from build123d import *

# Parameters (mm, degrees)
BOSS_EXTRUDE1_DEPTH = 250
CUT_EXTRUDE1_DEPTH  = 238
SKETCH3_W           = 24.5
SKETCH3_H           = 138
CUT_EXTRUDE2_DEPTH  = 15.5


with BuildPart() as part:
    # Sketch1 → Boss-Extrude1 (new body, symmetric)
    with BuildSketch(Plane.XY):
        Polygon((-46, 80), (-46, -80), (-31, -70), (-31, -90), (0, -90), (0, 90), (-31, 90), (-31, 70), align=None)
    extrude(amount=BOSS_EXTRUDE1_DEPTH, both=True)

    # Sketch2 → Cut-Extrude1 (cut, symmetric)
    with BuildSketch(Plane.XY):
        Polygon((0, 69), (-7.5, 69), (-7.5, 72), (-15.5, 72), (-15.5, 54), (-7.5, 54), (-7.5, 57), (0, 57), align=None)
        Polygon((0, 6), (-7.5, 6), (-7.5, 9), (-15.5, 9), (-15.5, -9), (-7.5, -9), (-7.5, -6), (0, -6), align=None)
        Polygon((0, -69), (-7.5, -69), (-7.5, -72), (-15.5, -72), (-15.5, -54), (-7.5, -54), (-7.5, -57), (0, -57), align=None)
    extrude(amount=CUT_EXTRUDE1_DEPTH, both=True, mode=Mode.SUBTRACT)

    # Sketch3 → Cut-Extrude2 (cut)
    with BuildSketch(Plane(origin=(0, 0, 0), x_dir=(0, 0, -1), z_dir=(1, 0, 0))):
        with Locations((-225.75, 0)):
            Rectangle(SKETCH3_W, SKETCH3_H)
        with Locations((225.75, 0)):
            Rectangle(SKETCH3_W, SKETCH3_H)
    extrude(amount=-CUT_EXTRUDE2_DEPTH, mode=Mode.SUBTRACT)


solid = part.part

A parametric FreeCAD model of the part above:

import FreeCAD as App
import Part
import Sketcher

V = App.Vector
Q = App.Units.Quantity


def add_polygon(sketch, points):
    """Adds a closed chain of lines whose ends are joined by coincident constraints."""
    first, n = sketch.GeometryCount, len(points)
    for a, b in zip(points, points[1:] + points[:1]):
        sketch.addGeometry(Part.LineSegment(App.Vector(*a, 0), App.Vector(*b, 0)), False)
    for i in range(n):
        sketch.addConstraint(Sketcher.Constraint("Coincident", first + i, 2, first + (i + 1) % n, 1))

doc = App.newDocument("Part")
params = doc.addObject("Spreadsheet::Sheet", "Params")
for row, (alias, value) in enumerate([
    ("sketch1_width", "31 mm"),
    ("sketch1_height", "160 mm"),
    ("sketch1_height2", "20 mm"),
    ("sketch1_height3", "180 mm"),
    ("pad1_length", "500 mm"),
    ("sketch2_width", "8 mm"),
    ("sketch2_height", "3 mm"),
    ("sketch2_height2", "18 mm"),
    ("sketch2_width2", "7.5 mm"),
    ("pocket1_length", "476 mm"),
    ("sketch3_width", "138 mm"),
    ("sketch3_height", "24.5 mm"),
    ("pocket2_length", "15.5 mm"),
], start=1):
    params.set(f"A{row}", alias)
    params.set(f"B{row}", "=" + value)
    params.setAlias(f"B{row}", alias)

body = doc.addObject("PartDesign::Body", "Body")

sketch1 = body.newObject("Sketcher::SketchObject", "Sketch")
sketch1.AttachmentSupport = (doc.getObject("XY_Plane"), [""])
sketch1.MapMode = "FlatFace"
add_polygon(sketch1, [(-46, 80), (-46, -80), (-31, -70), (-31, -90), (0, -90), (0, 90), (-31, 90), (-31, 70)])
sketch1.addConstraint([
    Sketcher.Constraint("Vertical", 0),
    Sketcher.Constraint("Vertical", 2),
    Sketcher.Constraint("Horizontal", 3),
    Sketcher.Constraint("Vertical", 4),
    Sketcher.Constraint("Horizontal", 5),
    Sketcher.Constraint("Vertical", 6),
    Sketcher.Constraint("Symmetric", 3, 2, 4, 2, -1, 1),
    Sketcher.Constraint("Symmetric", 1, 2, 6, 2, -1),
    Sketcher.Constraint("Equal", 1, 7),
    Sketcher.Constraint("DistanceX", 3, 1, 3, 2, Q("31 mm")),
    Sketcher.Constraint("DistanceY", 0, 2, 0, 1, Q("160 mm")),
    Sketcher.Constraint("DistanceY", 2, 2, 2, 1, Q("20 mm")),
    Sketcher.Constraint("DistanceY", 4, 1, 4, 2, Q("180 mm")),
    Sketcher.Constraint("DistanceX", 0, 2, -1, 1, Q("46 mm")),
])
sketch1.setExpression("Constraints[17]", "Params.sketch1_width")
sketch1.setExpression("Constraints[18]", "Params.sketch1_height")
sketch1.setExpression("Constraints[19]", "Params.sketch1_height2")
sketch1.setExpression("Constraints[20]", "Params.sketch1_height3")
pad1 = body.newObject("PartDesign::Pad", "Pad")
pad1.Profile = sketch1
pad1.setExpression("Length", "Params.pad1_length")
pad1.Midplane = True

sketch2 = body.newObject("Sketcher::SketchObject", "Sketch001")
sketch2.AttachmentSupport = (doc.getObject("XY_Plane"), [""])
sketch2.MapMode = "FlatFace"
add_polygon(sketch2, [(0, 69), (-7.5, 69), (-7.5, 72), (-15.5, 72), (-15.5, 54), (-7.5, 54), (-7.5, 57), (0, 57)])
add_polygon(sketch2, [(0, 6), (-7.5, 6), (-7.5, 9), (-15.5, 9), (-15.5, -9), (-7.5, -9), (-7.5, -6), (0, -6)])
add_polygon(sketch2, [(-7.5, -69), (0, -69), (0, -57), (-7.5, -57), (-7.5, -54), (-15.5, -54), (-15.5, -72), (-7.5, -72)])
sketch2.addConstraint([
    Sketcher.Constraint("Horizontal", 0),
    Sketcher.Constraint("Vertical", 1),
    Sketcher.Constraint("Horizontal", 2),
    Sketcher.Constraint("Vertical", 3),
    Sketcher.Constraint("Horizontal", 4),
    Sketcher.Constraint("Vertical", 5),
    Sketcher.Constraint("Horizontal", 6),
    Sketcher.Constraint("Vertical", 7),
    Sketcher.Constraint("Horizontal", 8),
    Sketcher.Constraint("Vertical", 9),
    Sketcher.Constraint("Horizontal", 10),
    Sketcher.Constraint("Vertical", 11),
    Sketcher.Constraint("Horizontal", 12),
    Sketcher.Constraint("Vertical", 13),
    Sketcher.Constraint("Horizontal", 14),
    Sketcher.Constraint("Vertical", 15),
    Sketcher.Constraint("Horizontal", 16),
    Sketcher.Constraint("Vertical", 17),
    Sketcher.Constraint("Horizontal", 18),
    Sketcher.Constraint("Vertical", 19),
    Sketcher.Constraint("Horizontal", 20),
    Sketcher.Constraint("Vertical", 21),
    Sketcher.Constraint("Horizontal", 22),
    Sketcher.Constraint("Vertical", 23),
    Sketcher.Constraint("Symmetric", 14, 2, 15, 2, -1, 1),
    Sketcher.Constraint("Symmetric", 7, 2, 16, 2, -1, 1),
    Sketcher.Constraint("Symmetric", 9, 2, 12, 2, -1),
    Sketcher.Constraint("Symmetric", 6, 2, 17, 2, -1),
    Sketcher.Constraint("Symmetric", 4, 2, 19, 2, -1),
    Sketcher.Constraint("Symmetric", 2, 2, 21, 2, -1),
    Sketcher.Constraint("Vertical", 1, 2, 4, 2),
    Sketcher.Constraint("Vertical", 5, 2, 8, 2),
    Sketcher.Constraint("Vertical", 3, 2, 10, 2),
    Sketcher.Constraint("Vertical", 19, 2, 22, 2),
    Sketcher.Constraint("Equal", 1, 5),
    Sketcher.Constraint("Equal", 5, 9),
    Sketcher.Constraint("Equal", 3, 11),
    Sketcher.Constraint("DistanceX", 2, 2, 2, 1, Q("8 mm")),
    Sketcher.Constraint("DistanceY", 1, 1, 1, 2, Q("3 mm")),
    Sketcher.Constraint("DistanceY", 3, 2, 3, 1, Q("18 mm")),
    Sketcher.Constraint("DistanceX", 0, 2, 0, 1, Q("7.5 mm")),
    Sketcher.Constraint("DistanceY", -1, 1, 0, 2, Q("69 mm")),
])
sketch2.setExpression("Constraints[61]", "Params.sketch2_width")
sketch2.setExpression("Constraints[62]", "Params.sketch2_height")
sketch2.setExpression("Constraints[63]", "Params.sketch2_height2")
sketch2.setExpression("Constraints[64]", "Params.sketch2_width2")
pocket1 = body.newObject("PartDesign::Pocket", "Pocket")
pocket1.Profile = sketch2
pocket1.setExpression("Length", "Params.pocket1_length")
pocket1.Midplane = True

sketch3 = body.newObject("Sketcher::SketchObject", "Sketch002")
sketch3.AttachmentSupport = (doc.getObject("YZ_Plane"), [""])
sketch3.MapMode = "FlatFace"
add_polygon(sketch3, [(69, 238), (-69, 238), (-69, 214), (69, 214)])
add_polygon(sketch3, [(69, -214), (-69, -214), (-69, -238), (69, -238)])
sketch3.addConstraint([
    Sketcher.Constraint("Horizontal", 0),
    Sketcher.Constraint("Vertical", 1),
    Sketcher.Constraint("Horizontal", 2),
    Sketcher.Constraint("Vertical", 3),
    Sketcher.Constraint("Horizontal", 4),
    Sketcher.Constraint("Vertical", 5),
    Sketcher.Constraint("Horizontal", 6),
    Sketcher.Constraint("Vertical", 7),
    Sketcher.Constraint("Symmetric", 2, 2, 4, 2, -1, 1),
    Sketcher.Constraint("Symmetric", 0, 2, 6, 2, -1, 1),
    Sketcher.Constraint("Vertical", 1, 2, 4, 2),
    Sketcher.Constraint("DistanceX", 0, 2, 0, 1, Q("138 mm")),
    Sketcher.Constraint("DistanceY", 1, 2, 1, 1, Q("24.5 mm")),
    Sketcher.Constraint("DistanceY", -1, 1, 0, 2, Q("238 mm")),
])
sketch3.setExpression("Constraints[19]", "Params.sketch3_width")
sketch3.setExpression("Constraints[20]", "Params.sketch3_height")
pocket2 = body.newObject("PartDesign::Pocket", "Pocket001")
pocket2.Profile = sketch3
pocket2.setExpression("Length", "Params.pocket2_length")

doc.recompute()
